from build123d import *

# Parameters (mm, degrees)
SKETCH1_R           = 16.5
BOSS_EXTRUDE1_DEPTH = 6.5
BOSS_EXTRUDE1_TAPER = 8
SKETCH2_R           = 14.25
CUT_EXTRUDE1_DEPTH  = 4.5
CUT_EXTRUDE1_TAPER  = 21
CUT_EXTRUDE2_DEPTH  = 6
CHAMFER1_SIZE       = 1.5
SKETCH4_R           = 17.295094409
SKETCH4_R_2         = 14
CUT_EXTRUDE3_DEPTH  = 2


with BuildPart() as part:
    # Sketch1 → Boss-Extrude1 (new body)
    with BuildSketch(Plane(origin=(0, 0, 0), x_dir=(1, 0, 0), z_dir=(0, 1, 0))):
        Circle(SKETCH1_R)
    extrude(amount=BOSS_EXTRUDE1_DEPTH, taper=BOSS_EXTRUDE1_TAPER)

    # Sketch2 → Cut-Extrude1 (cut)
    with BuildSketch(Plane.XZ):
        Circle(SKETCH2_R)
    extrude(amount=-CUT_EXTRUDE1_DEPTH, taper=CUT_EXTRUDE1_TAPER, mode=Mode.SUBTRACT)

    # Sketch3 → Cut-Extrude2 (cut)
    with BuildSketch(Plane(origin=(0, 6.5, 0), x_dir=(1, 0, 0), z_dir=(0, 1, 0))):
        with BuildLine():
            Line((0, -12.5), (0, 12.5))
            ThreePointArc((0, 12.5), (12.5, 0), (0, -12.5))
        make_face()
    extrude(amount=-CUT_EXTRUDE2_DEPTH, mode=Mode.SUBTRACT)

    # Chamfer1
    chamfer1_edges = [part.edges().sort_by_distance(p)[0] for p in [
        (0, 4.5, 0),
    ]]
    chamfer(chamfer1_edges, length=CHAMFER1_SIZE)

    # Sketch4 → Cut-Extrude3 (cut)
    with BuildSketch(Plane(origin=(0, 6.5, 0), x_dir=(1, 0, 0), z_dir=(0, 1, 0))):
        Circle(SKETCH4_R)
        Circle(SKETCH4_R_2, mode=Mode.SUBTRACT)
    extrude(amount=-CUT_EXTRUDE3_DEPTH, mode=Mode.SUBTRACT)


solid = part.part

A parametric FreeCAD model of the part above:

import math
import FreeCAD as App
import Part
import Sketcher
from FreeCAD import Vector


def edges_at(feature, points):
    """Names of the edges that pass closest to the given points."""
    edges = feature.Shape.Edges
    near = lambda p: min(range(len(edges)), key=lambda i: edges[i].distToShape(Part.Vertex(*p))[0])
    return sorted({f"Edge{near(p) + 1}" for p in points})

doc = App.newDocument("Part")
body = doc.addObject("PartDesign::Body", "Body")

sketch1 = doc.addObject("Sketcher::SketchObject", "Sketch")
body.addObject(sketch1)
sketch1.AttachmentSupport = (doc.XZ_Plane, [""])
sketch1.MapMode = "FlatFace"
sketch1.addGeometry(Part.Circle(Vector(0, 0, 0), Vector(0, 0, 1), 16), False)
sketch1.addConstraint([
    Sketcher.Constraint("Coincident", 0, 3, -1, 1),
    Sketcher.Constraint("Diameter", 0, 33.0),
])
pad1 = doc.addObject("PartDesign::Pad", "Pad")
body.addObject(pad1)
pad1.Profile = sketch1
pad1.Length = 6.5
pad1.Reversed = True
pad1.TaperAngle = -8

sketch2 = doc.addObject("Sketcher::SketchObject", "Sketch001")
body.addObject(sketch2)
sketch2.AttachmentSupport = (doc.XZ_Plane, [""])
sketch2.MapMode = "FlatFace"
sketch2.addGeometry(Part.Circle(Vector(0, 0, 0), Vector(0, 0, 1), 14), False)
sketch2.addConstraint([
    Sketcher.Constraint("Coincident", 0, 3, -1, 1),
    Sketcher.Constraint("Diameter", 0, 28.5),
])
pocket1 = doc.addObject("PartDesign::Pocket", "Pocket")
body.addObject(pocket1)
pocket1.Profile = sketch2
pocket1.Length = 4.5
pocket1.TaperAngle = -21

sketch3 = doc.addObject("Sketcher::SketchObject", "Sketch002")
body.addObject(sketch3)
sketch3.AttachmentSupport = (doc.XZ_Plane, [""])
sketch3.MapMode = "FlatFace"
sketch3.AttachmentOffset = App.Placement(Vector(0, 0, -6.5), App.Rotation())
sketch3.addGeometry([
    Part.LineSegment(Vector(0, -12, 0), Vector(0, 12, 0)),
    Part.ArcOfCircle(Part.Circle(Vector(0, 0, 0), Vector(0, 0, 1), 12), math.radians(-90), math.radians(90)),
], False)
sketch3.addConstraint([
    Sketcher.Constraint("Coincident", 0, 1, 1, 1),
    Sketcher.Constraint("Coincident", 1, 2, 0, 2),
    Sketcher.Constraint("Vertical", 0),
    Sketcher.Constraint("Coincident", 1, 3, -1, 1),
    Sketcher.Constraint("PointOnObject", 0, 1, -2),
    Sketcher.Constraint("Radius", 1, 12.5),
])
pocket2 = doc.addObject("PartDesign::Pocket", "Pocket001")
body.addObject(pocket2)
pocket2.Profile = sketch3
pocket2.Length = 6
pocket2.Reversed = True
doc.recompute()

chamfer = doc.addObject("PartDesign::Chamfer", "Chamfer")
body.addObject(chamfer)
chamfer.Base = (pocket2, edges_at(pocket2, [(0, 4.5, 0)]))
chamfer.Size = 1.5

sketch4 = doc.addObject("Sketcher::SketchObject", "Sketch003")
body.addObject(sketch4)
sketch4.AttachmentSupport = (doc.XZ_Plane, [""])
sketch4.MapMode = "FlatFace"
sketch4.AttachmentOffset = App.Placement(Vector(0, 0, -6.5), App.Rotation())
sketch4.addGeometry([
    Part.Circle(Vector(0, 0, 0), Vector(0, 0, 1), 17),
    Part.Circle(Vector(0, 0, 0), Vector(0, 0, 1), 14),
], False)
sketch4.addConstraint([
    Sketcher.Constraint("Coincident", 0, 3, -1, 1),
    Sketcher.Constraint("Coincident", 1, 3, -1, 1),
    Sketcher.Constraint("Diameter", 1, 28.0),
    Sketcher.Constraint("Diameter", 0, 34.590189),
])
pocket3 = doc.addObject("PartDesign::Pocket", "Pocket002")
body.addObject(pocket3)
pocket3.Profile = sketch4
pocket3.Length = 2
pocket3.Reversed = True

doc.recompute()
